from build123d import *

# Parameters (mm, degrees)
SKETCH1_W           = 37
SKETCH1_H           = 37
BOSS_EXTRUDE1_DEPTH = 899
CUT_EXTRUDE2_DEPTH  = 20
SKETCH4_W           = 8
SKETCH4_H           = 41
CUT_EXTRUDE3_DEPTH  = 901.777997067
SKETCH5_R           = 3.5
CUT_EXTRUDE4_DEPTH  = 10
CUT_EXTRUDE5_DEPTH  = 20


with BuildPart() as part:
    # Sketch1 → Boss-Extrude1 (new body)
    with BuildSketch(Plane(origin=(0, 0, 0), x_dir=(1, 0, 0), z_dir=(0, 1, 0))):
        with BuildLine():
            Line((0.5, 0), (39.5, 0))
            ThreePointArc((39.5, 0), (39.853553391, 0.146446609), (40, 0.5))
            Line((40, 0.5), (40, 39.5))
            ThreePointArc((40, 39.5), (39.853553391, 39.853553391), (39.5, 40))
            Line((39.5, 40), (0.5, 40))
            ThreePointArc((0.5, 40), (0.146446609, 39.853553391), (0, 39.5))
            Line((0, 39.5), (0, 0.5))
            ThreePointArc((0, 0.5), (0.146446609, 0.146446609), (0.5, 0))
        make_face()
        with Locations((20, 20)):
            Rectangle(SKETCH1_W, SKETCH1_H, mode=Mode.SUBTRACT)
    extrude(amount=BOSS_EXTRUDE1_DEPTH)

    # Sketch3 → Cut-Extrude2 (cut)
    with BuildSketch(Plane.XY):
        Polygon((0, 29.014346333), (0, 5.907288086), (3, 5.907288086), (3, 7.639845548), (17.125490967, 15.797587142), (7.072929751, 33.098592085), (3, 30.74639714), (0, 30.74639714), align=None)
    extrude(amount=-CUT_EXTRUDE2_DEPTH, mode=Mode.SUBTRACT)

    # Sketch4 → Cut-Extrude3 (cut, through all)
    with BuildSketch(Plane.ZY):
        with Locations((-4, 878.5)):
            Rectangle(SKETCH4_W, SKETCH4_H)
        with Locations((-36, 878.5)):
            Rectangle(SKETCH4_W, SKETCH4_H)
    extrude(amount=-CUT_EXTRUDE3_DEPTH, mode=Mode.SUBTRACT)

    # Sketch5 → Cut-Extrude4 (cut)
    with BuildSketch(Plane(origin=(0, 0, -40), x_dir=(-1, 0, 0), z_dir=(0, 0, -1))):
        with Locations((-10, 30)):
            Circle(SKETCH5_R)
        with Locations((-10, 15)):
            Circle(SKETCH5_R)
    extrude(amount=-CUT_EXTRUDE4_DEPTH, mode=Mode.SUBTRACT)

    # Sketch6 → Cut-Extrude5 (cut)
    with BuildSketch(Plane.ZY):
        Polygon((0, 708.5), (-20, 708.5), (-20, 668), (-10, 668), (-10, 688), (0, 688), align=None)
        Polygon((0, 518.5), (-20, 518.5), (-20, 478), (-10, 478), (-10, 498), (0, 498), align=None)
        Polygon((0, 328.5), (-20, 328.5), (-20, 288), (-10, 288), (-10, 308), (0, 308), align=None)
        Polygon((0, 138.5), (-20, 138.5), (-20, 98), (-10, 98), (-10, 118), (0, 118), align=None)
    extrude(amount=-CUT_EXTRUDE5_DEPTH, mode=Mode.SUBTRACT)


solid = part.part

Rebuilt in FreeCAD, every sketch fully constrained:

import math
import FreeCAD as App
import Part
import Sketcher

V = App.Vector


def add_polygon(sketch, points):
    """Adds a closed chain of lines whose ends are joined by coincident constraints."""
    first, n = sketch.GeometryCount, len(points)
    for a, b in zip(points, points[1:] + points[:1]):
        sketch.addGeometry(Part.LineSegment(App.Vector(*a, 0), App.Vector(*b, 0)), False)
    for i in range(n):
        sketch.addConstraint(Sketcher.Constraint("Coincident", first + i, 2, first + (i + 1) % n, 1))

doc = App.newDocument("Part")
body = doc.addObject("PartDesign::Body", "Body")

sketch1 = body.newObject("Sketcher::SketchObject", "Sketch")
sketch1.AttachmentSupport = (doc.getObject("XZ_Plane"), [""])
sketch1.MapMode = "FlatFace"
sketch1.addGeometry(Part.LineSegment(V(0.5, 0, 0), V(39.5, 0, 0)), False)
sketch1.addGeometry(Part.ArcOfCircle(Part.Circle(V(39.5, -0.5, 0), V(0, 0, 1), 0.5), math.radians(0), math.radians(90)), False)
sketch1.addGeometry(Part.LineSegment(V(40, -0.5, 0), V(40, -39.5, 0)), False)
sketch1.addGeometry(Part.ArcOfCircle(Part.Circle(V(39.5, -39.5, 0), V(0, 0, 1), 0.5), math.radians(-90), math.radians(0)), False)
sketch1.addGeometry(Part.LineSegment(V(39.5, -40, 0), V(0.5, -40, 0)), False)
sketch1.addGeometry(Part.ArcOfCircle(Part.Circle(V(0.5, -39.5, 0), V(0, 0, 1), 0.5), math.radians(180), math.radians(270)), False)
sketch1.addGeometry(Part.LineSegment(V(0, -39.5, 0), V(0, -0.5, 0)), False)
sketch1.addGeometry(Part.ArcOfCircle(Part.Circle(V(0.5, -0.5, 0), V(0, 0, 1), 0.5), math.radians(90), math.radians(180)), False)
add_polygon(sketch1, [(38.5, -1.5), (1.5, -1.5), (1.5, -38.5), (38.5, -38.5)])
sketch1.addConstraint(Sketcher.Constraint("Tangent", 0, 2, 1, 2))
sketch1.addConstraint(Sketcher.Constraint("Tangent", 1, 1, 2, 1))
sketch1.addConstraint(Sketcher.Constraint("Tangent", 2, 2, 3, 2))
sketch1.addConstraint(Sketcher.Constraint("Tangent", 3, 1, 4, 1))
sketch1.addConstraint(Sketcher.Constraint("Tangent", 4, 2, 5, 2))
sketch1.addConstraint(Sketcher.Constraint("Tangent", 5, 1, 6, 1))
sketch1.addConstraint(Sketcher.Constraint("Tangent", 6, 2, 7, 2))
sketch1.addConstraint(Sketcher.Constraint("Tangent", 7, 1, 0, 1))
sketch1.addConstraint(Sketcher.Constraint("Horizontal", 0))
sketch1.addConstraint(Sketcher.Constraint("Vertical", 2))
sketch1.addConstraint(Sketcher.Constraint("Horizontal", 4))
sketch1.addConstraint(Sketcher.Constraint("Vertical", 6))
sketch1.addConstraint(Sketcher.Constraint("Horizontal", 8))
sketch1.addConstraint(Sketcher.Constraint("Vertical", 9))
sketch1.addConstraint(Sketcher.Constraint("Horizontal", 10))
sketch1.addConstraint(Sketcher.Constraint("Vertical", 11))
sketch1.addConstraint(Sketcher.Constraint("Equal", 1, 3))
sketch1.addConstraint(Sketcher.Constraint("Equal", 3, 5))
sketch1.addConstraint(Sketcher.Constraint("Equal", 5, 7))
sketch1.addConstraint(Sketcher.Constraint("PointOnObject", 0, 2, -1))
sketch1.addConstraint(Sketcher.Constraint("PointOnObject", 5, 1, -2))
sketch1.addConstraint(Sketcher.Constraint("Equal", 4, 2))
sketch1.addConstraint(Sketcher.Constraint("Equal", 10, 9))
sketch1.addConstraint(Sketcher.Constraint("Radius", 1, 0.5))
sketch1.addConstraint(Sketcher.Constraint("DistanceX", 0, 1, 0, 2, 39.0))
sketch1.addConstraint(Sketcher.Constraint("DistanceX", 8, 2, 8, 1, 37.0))
sketch1.addConstraint(Sketcher.Constraint("DistanceX", 7, 3, 8, 2, 1.0))
sketch1.addConstraint(Sketcher.Constraint("DistanceY", 8, 2, 7, 3, 1.0))
pad1 = body.newObject("PartDesign::Pad", "Pad")
pad1.Profile = sketch1
pad1.Length = 899
pad1.Reversed = True

sketch2 = body.newObject("Sketcher::SketchObject", "Sketch001")
sketch2.AttachmentSupport = (doc.getObject("XY_Plane"), [""])
sketch2.MapMode = "FlatFace"
add_polygon(sketch2, [(0, 5.9), (3, 5.9), (3, 7.6), (17.1, 15.8), (7.1, 33.1), (3, 30.7), (0, 30.7)])
sketch2.addConstraint(Sketcher.Constraint("Horizontal", 0))
sketch2.addConstraint(Sketcher.Constraint("Vertical", 1))
sketch2.addConstraint(Sketcher.Constraint("Horizontal", 5))
sketch2.addConstraint(Sketcher.Constraint("Vertical", 6))
sketch2.addConstraint(Sketcher.Constraint("PointOnObject", 5, 2, -2))
sketch2.addConstraint(Sketcher.Constraint("Parallel", 2, 4))
sketch2.addConstraint(Sketcher.Constraint("Vertical", 1, 2, 4, 2))
sketch2.addConstraint(Sketcher.Constraint("DistanceX", 0, 1, 0, 2, 3.0))
sketch2.addConstraint(Sketcher.Constraint("DistanceY", 6, 2, 6, 1, 24.839109))
sketch2.addConstraint(Sketcher.Constraint("DistanceY", 0, 2, 2, 2, 9.890299))
sketch2.addConstraint(Sketcher.Constraint("Distance", 4, 4.703358))
sketch2.addConstraint(Sketcher.Constraint("DistanceY", 1, 1, 1, 2, 1.732557))
sketch2.addConstraint(Sketcher.Constraint("DistanceY", -1, 1, 0, 2, 5.907288))
sketch2.addConstraint(Sketcher.Constraint("DistanceX", -1, 1, 2, 2, 17.125491))
pocket1 = body.newObject("PartDesign::Pocket", "Pocket")
pocket1.Profile = sketch2
pocket1.Length = 20

sketch3 = body.newObject("Sketcher::SketchObject", "Sketch002")
sketch3.AttachmentSupport = (doc.getObject("YZ_Plane"), [""])
sketch3.MapMode = "FlatFace"
add_polygon(sketch3, [(899, -8), (858, -8), (858, 0), (899, 0)])
add_polygon(sketch3, [(899, -40), (858, -40), (858, -32), (899, -32)])
sketch3.addConstraint(Sketcher.Constraint("Horizontal", 0))
sketch3.addConstraint(Sketcher.Constraint("Vertical", 1))
sketch3.addConstraint(Sketcher.Constraint("Horizontal", 2))
sketch3.addConstraint(Sketcher.Constraint("Vertical", 3))
sketch3.addConstraint(Sketcher.Constraint("Horizontal", 4))
sketch3.addConstraint(Sketcher.Constraint("Vertical", 5))
sketch3.addConstraint(Sketcher.Constraint("Horizontal", 6))
sketch3.addConstraint(Sketcher.Constraint("Vertical", 7))
sketch3.addConstraint(Sketcher.Constraint("PointOnObject", 1, 2, -1))
sketch3.addConstraint(Sketcher.Constraint("Vertical", 1, 2, 4, 2))
sketch3.addConstraint(Sketcher.Constraint("Vertical", 3, 2, 6, 2))
sketch3.addConstraint(Sketcher.Constraint("Equal", 3, 5))
sketch3.addConstraint(Sketcher.Constraint("DistanceX", 0, 2, 0, 1, 41.0))
sketch3.addConstraint(Sketcher.Constraint("DistanceY", 1, 1, 1, 2, 8.0))
sketch3.addConstraint(Sketcher.Constraint("DistanceX", -1, 1, 0, 2, 858.0))
sketch3.addConstraint(Sketcher.Constraint("DistanceY", 4, 2, -1, 1, 40.0))
pocket2 = body.newObject("PartDesign::Pocket", "Pocket001")
pocket2.Profile = sketch3
pocket2.Type = "ThroughAll"
pocket2.Reversed = True

sketch4 = body.newObject("Sketcher::SketchObject", "Sketch003")
sketch4.AttachmentSupport = (doc.getObject("XY_Plane"), [""])
sketch4.MapMode = "FlatFace"
sketch4.AttachmentOffset = App.Placement(V(0, 0, -40), App.Rotation())
sketch4.addGeometry(Part.Circle(V(10, 30, 0), V(0, 0, 1), 3.5), False)
sketch4.addGeometry(Part.Circle(V(10, 15, 0), V(0, 0, 1), 3.5), False)
sketch4.addConstraint(Sketcher.Constraint("Equal", 0, 1))
sketch4.addConstraint(Sketcher.Constraint("Vertical", 0, 3, 1, 3))
sketch4.addConstraint(Sketcher.Constraint("Diameter", 0, 7.0))
sketch4.addConstraint(Sketcher.Constraint("DistanceX", -1, 1, 0, 3, 10.0))
sketch4.addConstraint(Sketcher.Constraint("DistanceY", -1, 1, 0, 3, 30.0))
sketch4.addConstraint(Sketcher.Constraint("DistanceY", -1, 1, 1, 3, 15.0))
pocket3 = body.newObject("PartDesign::Pocket", "Pocket002")
pocket3.Profile = sketch4
pocket3.Length = 10
pocket3.Reversed = True

sketch5 = body.newObject("Sketcher::SketchObject", "Sketch004")
sketch5.AttachmentSupport = (doc.getObject("YZ_Plane"), [""])
sketch5.MapMode = "FlatFace"
add_polygon(sketch5, [(708, 0), (708, -20), (668, -20), (668, -10), (688, -10), (688, 0)])
add_polygon(sketch5, [(518, 0), (518, -20), (478, -20), (478, -10), (498, -10), (498, 0)])
add_polygon(sketch5, [(328, 0), (328, -20), (288, -20), (288, -10), (308, -10), (308, 0)])
add_polygon(sketch5, [(138, 0), (138, -20), (98, -20), (98, -10), (118, -10), (118, 0)])
sketch5.addConstraint(Sketcher.Constraint("Vertical", 0))
sketch5.addConstraint(Sketcher.Constraint("Horizontal", 1))
sketch5.addConstraint(Sketcher.Constraint("Vertical", 2))
sketch5.addConstraint(Sketcher.Constraint("Horizontal", 3))
sketch5.addConstraint(Sketcher.Constraint("Vertical", 4))
sketch5.addConstraint(Sketcher.Constraint("Horizontal", 5))
sketch5.addConstraint(Sketcher.Constraint("Vertical", 6))
sketch5.addConstraint(Sketcher.Constraint("Horizontal", 7))
sketch5.addConstraint(Sketcher.Constraint("Vertical", 8))
sketch5.addConstraint(Sketcher.Constraint("Horizontal", 9))
sketch5.addConstraint(Sketcher.Constraint("Vertical", 10))
sketch5.addConstraint(Sketcher.Constraint("Horizontal", 11))
sketch5.addConstraint(Sketcher.Constraint("Vertical", 12))
sketch5.addConstraint(Sketcher.Constraint("Horizontal", 13))
sketch5.addConstraint(Sketcher.Constraint("Vertical", 14))
sketch5.addConstraint(Sketcher.Constraint("Horizontal", 15))
sketch5.addConstraint(Sketcher.Constraint("Vertical", 16))
sketch5.addConstraint(Sketcher.Constraint("Horizontal", 17))
sketch5.addConstraint(Sketcher.Constraint("Vertical", 18))
sketch5.addConstraint(Sketcher.Constraint("Horizontal", 19))
sketch5.addConstraint(Sketcher.Constraint("Vertical", 20))
sketch5.addConstraint(Sketcher.Constraint("Horizontal", 21))
sketch5.addConstraint(Sketcher.Constraint("Vertical", 22))
sketch5.addConstraint(Sketcher.Constraint("Horizontal", 23))
sketch5.addConstraint(Sketcher.Constraint("PointOnObject", 4, 2, -1))
sketch5.addConstraint(Sketcher.Constraint("PointOnObject", 10, 2, -1))
sketch5.addConstraint(Sketcher.Constraint("PointOnObject", 16, 2, -1))
sketch5.addConstraint(Sketcher.Constraint("PointOnObject", 22, 2, -1))
sketch5.addConstraint(Sketcher.Constraint("Horizontal", 1, 2, 6, 2))
sketch5.addConstraint(Sketcher.Constraint("Horizontal", 3, 2, 8, 2))
sketch5.addConstraint(Sketcher.Constraint("Horizontal", 7, 2, 12, 2))
sketch5.addConstraint(Sketcher.Constraint("Horizontal", 9, 2, 14, 2))
sketch5.addConstraint(Sketcher.Constraint("Horizontal", 13, 2, 18, 2))
sketch5.addConstraint(Sketcher.Constraint("Horizontal", 15, 2, 20, 2))
sketch5.addConstraint(Sketcher.Constraint("Equal", 1, 7))
sketch5.addConstraint(Sketcher.Constraint("Equal", 3, 9))
sketch5.addConstraint(Sketcher.Constraint("Equal", 7, 13))
sketch5.addConstraint(Sketcher.Constraint("Equal", 9, 15))
sketch5.addConstraint(Sketcher.Constraint("Equal", 13, 19))
sketch5.addConstraint(Sketcher.Constraint("Equal", 15, 21))
sketch5.addConstraint(Sketcher.Constraint("Equal", 21, 0))
sketch5.addConstraint(Sketcher.Constraint("Equal", 2, 4))
sketch5.addConstraint(Sketcher.Constraint("DistanceX", 3, 1, 3, 2, 20.0))
sketch5.addConstraint(Sketcher.Constraint("DistanceX", 1, 2, 1, 1, 40.5))
sketch5.addConstraint(Sketcher.Constraint("DistanceX", -1, 1, 1, 2, 668.0))
sketch5.addConstraint(Sketcher.Constraint("DistanceX", -1, 1, 7, 2, 478.0))
sketch5.addConstraint(Sketcher.Constraint("DistanceX", -1, 1, 13, 2, 288.0))
sketch5.addConstraint(Sketcher.Constraint("DistanceX", -1, 1, 19, 2, 98.0))
pocket4 = body.newObject("PartDesign::Pocket", "Pocket003")
pocket4.Profile = sketch5
pocket4.Length = 20
pocket4.Reversed = True

doc.recompute()
